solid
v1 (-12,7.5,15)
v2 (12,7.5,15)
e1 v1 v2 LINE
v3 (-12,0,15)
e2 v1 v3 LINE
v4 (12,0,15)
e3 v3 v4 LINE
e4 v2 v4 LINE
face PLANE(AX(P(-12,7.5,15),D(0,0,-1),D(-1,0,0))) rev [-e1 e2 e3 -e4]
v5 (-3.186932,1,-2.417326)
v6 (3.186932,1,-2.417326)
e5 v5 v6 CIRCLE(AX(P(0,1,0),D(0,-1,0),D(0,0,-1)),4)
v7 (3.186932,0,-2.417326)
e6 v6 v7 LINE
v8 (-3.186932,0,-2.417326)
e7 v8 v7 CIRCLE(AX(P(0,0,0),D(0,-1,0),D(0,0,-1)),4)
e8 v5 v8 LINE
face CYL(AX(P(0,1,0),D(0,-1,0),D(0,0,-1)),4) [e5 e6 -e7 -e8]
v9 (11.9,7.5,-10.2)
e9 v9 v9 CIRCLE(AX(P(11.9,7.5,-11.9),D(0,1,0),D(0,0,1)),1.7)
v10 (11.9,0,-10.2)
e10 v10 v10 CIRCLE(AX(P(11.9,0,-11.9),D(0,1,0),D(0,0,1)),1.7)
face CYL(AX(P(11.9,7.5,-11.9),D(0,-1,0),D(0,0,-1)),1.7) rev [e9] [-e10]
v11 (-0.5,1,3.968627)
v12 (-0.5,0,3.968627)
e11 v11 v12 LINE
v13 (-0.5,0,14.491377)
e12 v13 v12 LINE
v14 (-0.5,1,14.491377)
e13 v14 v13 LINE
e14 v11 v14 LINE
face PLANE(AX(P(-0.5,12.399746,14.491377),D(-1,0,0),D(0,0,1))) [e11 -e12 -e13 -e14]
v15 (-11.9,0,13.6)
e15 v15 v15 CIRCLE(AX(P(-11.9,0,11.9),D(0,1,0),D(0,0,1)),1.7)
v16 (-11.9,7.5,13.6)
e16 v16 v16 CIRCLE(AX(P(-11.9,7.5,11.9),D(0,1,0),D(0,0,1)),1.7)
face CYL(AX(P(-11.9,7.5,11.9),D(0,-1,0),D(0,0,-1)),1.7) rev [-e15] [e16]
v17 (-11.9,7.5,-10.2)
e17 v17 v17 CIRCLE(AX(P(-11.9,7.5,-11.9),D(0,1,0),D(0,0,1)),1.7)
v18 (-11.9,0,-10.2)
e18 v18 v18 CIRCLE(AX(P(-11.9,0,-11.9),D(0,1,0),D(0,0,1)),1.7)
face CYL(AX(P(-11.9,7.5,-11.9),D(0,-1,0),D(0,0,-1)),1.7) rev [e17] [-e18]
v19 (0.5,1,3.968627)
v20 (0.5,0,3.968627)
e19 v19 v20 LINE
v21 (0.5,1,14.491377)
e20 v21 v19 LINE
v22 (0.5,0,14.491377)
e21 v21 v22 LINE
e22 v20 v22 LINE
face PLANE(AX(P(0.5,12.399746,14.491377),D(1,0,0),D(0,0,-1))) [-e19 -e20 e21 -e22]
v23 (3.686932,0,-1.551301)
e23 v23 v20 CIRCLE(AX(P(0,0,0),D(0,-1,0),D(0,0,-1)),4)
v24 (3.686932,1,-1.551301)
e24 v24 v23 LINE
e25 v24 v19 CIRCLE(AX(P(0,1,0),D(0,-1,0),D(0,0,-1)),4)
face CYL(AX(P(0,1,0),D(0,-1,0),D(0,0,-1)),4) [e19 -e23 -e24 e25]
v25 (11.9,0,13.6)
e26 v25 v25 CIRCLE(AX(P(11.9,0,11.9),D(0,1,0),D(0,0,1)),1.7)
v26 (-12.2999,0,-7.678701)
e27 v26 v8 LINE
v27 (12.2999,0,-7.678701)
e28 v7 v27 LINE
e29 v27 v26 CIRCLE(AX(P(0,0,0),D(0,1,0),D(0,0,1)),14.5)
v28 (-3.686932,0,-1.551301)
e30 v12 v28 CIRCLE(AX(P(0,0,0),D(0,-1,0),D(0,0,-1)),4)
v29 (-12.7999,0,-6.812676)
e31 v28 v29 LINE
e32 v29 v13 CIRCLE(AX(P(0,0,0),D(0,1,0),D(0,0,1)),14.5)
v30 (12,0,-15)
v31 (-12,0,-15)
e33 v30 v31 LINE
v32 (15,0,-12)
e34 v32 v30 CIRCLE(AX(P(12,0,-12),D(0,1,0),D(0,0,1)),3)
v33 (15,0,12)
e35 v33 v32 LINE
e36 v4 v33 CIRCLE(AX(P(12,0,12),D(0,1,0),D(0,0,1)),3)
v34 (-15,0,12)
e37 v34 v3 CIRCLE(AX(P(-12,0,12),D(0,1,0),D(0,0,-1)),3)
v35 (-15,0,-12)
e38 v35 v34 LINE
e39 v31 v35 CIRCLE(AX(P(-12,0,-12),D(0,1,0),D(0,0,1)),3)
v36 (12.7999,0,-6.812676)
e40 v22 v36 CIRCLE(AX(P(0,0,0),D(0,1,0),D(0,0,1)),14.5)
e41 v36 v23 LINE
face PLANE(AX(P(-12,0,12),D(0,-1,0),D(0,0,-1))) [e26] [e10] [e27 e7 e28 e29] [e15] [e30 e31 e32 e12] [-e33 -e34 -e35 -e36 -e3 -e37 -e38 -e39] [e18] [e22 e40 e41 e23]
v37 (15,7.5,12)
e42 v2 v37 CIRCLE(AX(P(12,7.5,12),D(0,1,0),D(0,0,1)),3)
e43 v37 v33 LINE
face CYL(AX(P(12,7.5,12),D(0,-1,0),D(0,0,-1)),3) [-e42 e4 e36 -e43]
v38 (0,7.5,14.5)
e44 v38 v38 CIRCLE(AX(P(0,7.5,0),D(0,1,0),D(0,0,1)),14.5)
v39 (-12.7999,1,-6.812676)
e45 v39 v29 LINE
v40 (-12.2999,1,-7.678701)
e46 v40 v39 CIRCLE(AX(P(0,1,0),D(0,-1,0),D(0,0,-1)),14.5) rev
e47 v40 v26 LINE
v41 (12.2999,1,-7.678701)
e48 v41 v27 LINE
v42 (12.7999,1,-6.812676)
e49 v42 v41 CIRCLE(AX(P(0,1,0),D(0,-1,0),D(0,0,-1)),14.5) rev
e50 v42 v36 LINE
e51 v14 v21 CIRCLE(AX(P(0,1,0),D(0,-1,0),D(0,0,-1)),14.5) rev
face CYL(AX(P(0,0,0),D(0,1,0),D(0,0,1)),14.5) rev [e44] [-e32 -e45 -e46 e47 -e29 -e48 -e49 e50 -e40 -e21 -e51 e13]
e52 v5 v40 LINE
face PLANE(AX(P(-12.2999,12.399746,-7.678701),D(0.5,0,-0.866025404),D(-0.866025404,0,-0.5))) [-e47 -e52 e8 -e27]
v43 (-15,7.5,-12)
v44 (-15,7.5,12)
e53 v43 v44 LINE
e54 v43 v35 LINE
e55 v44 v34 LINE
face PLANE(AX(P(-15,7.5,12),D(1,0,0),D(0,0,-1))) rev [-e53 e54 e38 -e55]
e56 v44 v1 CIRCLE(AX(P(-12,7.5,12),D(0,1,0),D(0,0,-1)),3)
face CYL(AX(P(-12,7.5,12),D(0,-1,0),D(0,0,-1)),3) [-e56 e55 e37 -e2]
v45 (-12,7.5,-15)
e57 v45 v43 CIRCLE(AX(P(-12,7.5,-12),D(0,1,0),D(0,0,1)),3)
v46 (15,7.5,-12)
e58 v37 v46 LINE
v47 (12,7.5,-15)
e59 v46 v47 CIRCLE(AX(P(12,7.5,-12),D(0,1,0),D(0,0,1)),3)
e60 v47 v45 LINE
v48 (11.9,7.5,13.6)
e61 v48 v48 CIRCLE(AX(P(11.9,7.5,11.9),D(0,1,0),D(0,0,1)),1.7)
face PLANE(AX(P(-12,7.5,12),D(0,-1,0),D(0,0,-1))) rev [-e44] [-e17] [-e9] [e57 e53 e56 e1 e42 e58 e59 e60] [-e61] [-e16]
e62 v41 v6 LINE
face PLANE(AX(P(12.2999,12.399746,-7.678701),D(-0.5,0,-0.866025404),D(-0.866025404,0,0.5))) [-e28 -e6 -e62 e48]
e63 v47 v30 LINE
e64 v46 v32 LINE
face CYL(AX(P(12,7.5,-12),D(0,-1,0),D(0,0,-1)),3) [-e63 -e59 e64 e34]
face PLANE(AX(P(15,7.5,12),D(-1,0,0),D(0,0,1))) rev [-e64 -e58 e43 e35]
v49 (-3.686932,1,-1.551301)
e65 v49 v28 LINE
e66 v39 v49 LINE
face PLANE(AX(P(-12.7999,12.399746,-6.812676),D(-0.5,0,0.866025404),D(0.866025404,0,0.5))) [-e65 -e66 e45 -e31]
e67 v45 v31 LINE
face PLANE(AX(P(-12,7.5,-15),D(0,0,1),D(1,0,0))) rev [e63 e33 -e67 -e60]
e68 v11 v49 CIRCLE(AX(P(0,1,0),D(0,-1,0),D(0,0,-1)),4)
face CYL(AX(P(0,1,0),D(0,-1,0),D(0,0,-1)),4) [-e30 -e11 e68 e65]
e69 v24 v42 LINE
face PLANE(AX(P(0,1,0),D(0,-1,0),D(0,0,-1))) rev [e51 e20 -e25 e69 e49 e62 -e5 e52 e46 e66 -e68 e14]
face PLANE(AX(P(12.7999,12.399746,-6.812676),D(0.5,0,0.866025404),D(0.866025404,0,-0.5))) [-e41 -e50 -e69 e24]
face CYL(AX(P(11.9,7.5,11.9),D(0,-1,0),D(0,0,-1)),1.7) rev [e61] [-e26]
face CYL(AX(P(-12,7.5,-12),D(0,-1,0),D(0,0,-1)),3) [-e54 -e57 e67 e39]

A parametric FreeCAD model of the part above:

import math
import FreeCAD as App
import Part
import Sketcher
from FreeCAD import Vector
Q = App.Units.Quantity

doc = App.newDocument("Part")
body = doc.addObject("PartDesign::Body", "Body")

sketch1 = body.newObject("Sketcher::SketchObject", "Sketch")
sketch1.AttachmentSupport = (doc.getObject("XZ_Plane"), [""])
sketch1.MapMode = "FlatFace"
sketch1.addGeometry(Part.LineSegment(Vector(-12, 15, 0), Vector(12, 15, 0)), False)
sketch1.addGeometry(Part.ArcOfCircle(Part.Circle(Vector(12, 12, 0), Vector(0, 0, 1), 3), math.radians(0), math.radians(90)), False)
sketch1.addGeometry(Part.LineSegment(Vector(15, 12, 0), Vector(15, -12, 0)), False)
sketch1.addGeometry(Part.ArcOfCircle(Part.Circle(Vector(12, -12, 0), Vector(0, 0, 1), 3), math.radians(-90), math.radians(0)), False)
sketch1.addGeometry(Part.LineSegment(Vector(12, -15, 0), Vector(-12, -15, 0)), False)
sketch1.addGeometry(Part.ArcOfCircle(Part.Circle(Vector(-12, -12, 0), Vector(0, 0, 1), 3), math.radians(180), math.radians(270)), False)
sketch1.addGeometry(Part.LineSegment(Vector(-15, -12, 0), Vector(-15, 12, 0)), False)
sketch1.addGeometry(Part.ArcOfCircle(Part.Circle(Vector(-12, 12, 0), Vector(0, 0, 1), 3), math.radians(90), math.radians(180)), False)
sketch1.addGeometry(Part.Circle(Vector(-11.9, 11.9, 0), Vector(0, 0, 1), 1.7), False)
sketch1.addGeometry(Part.Circle(Vector(11.9, 11.9, 0), Vector(0, 0, 1), 1.7), False)
sketch1.addGeometry(Part.Circle(Vector(-11.9, -11.9, 0), Vector(0, 0, 1), 1.7), False)
sketch1.addGeometry(Part.Circle(Vector(11.9, -11.9, 0), Vector(0, 0, 1), 1.7), False)
sketch1.addConstraint(Sketcher.Constraint("Tangent", 0, 2, 1, 2))
sketch1.addConstraint(Sketcher.Constraint("Tangent", 1, 1, 2, 1))
sketch1.addConstraint(Sketcher.Constraint("Tangent", 2, 2, 3, 2))
sketch1.addConstraint(Sketcher.Constraint("Tangent", 3, 1, 4, 1))
sketch1.addConstraint(Sketcher.Constraint("Tangent", 4, 2, 5, 2))
sketch1.addConstraint(Sketcher.Constraint("Tangent", 5, 1, 6, 1))
sketch1.addConstraint(Sketcher.Constraint("Tangent", 6, 2, 7, 2))
sketch1.addConstraint(Sketcher.Constraint("Tangent", 7, 1, 0, 1))
sketch1.addConstraint(Sketcher.Constraint("Horizontal", 0))
sketch1.addConstraint(Sketcher.Constraint("Vertical", 2))
sketch1.addConstraint(Sketcher.Constraint("Horizontal", 4))
sketch1.addConstraint(Sketcher.Constraint("Vertical", 6))
sketch1.addConstraint(Sketcher.Constraint("Equal", 1, 3))
sketch1.addConstraint(Sketcher.Constraint("Equal", 3, 5))
sketch1.addConstraint(Sketcher.Constraint("Equal", 5, 7))
sketch1.addConstraint(Sketcher.Constraint("Equal", 8, 9))
sketch1.addConstraint(Sketcher.Constraint("Equal", 9, 10))
sketch1.addConstraint(Sketcher.Constraint("Equal", 10, 11))
sketch1.addConstraint(Sketcher.Constraint("Symmetric", 1, 3, 5, 3, -1, 1))
sketch1.addConstraint(Sketcher.Constraint("Symmetric", 9, 3, 10, 3, -1, 1))
sketch1.addConstraint(Sketcher.Constraint("Symmetric", 8, 3, 11, 3, -1, 1))
sketch1.addConstraint(Sketcher.Constraint("Symmetric", 8, 3, 9, 3, -2))
sketch1.addConstraint(Sketcher.Constraint("Equal", 4, 2))
sketch1.addConstraint(Sketcher.Constraint("Radius", 1, Q("3 mm")))
sketch1.addConstraint(Sketcher.Constraint("Diameter", 8, Q("3.4 mm")))
sketch1.addConstraint(Sketcher.Constraint("DistanceX", 0, 1, 0, 2, Q("24 mm")))
sketch1.addConstraint(Sketcher.Constraint("DistanceX", 8, 3, -1, 1, Q("11.9 mm")))
sketch1.addConstraint(Sketcher.Constraint("DistanceY", -1, 1, 8, 3, Q("11.9 mm")))
pad1 = body.newObject("PartDesign::Pad", "Pad")
pad1.Profile = sketch1
pad1.Length = 7.5
pad1.Reversed = True

sketch2 = body.newObject("Sketcher::SketchObject", "Sketch001")
sketch2.AttachmentSupport = (doc.getObject("XZ_Plane"), [""])
sketch2.MapMode = "FlatFace"
sketch2.AttachmentOffset = App.Placement(Vector(0, 0, -7.5), App.Rotation())
sketch2.addGeometry(Part.Circle(Vector(0, 0, 0), Vector(0, 0, 1), 14), False)
sketch2.addConstraint(Sketcher.Constraint("Coincident", 0, 3, -1, 1))
sketch2.addConstraint(Sketcher.Constraint("Diameter", 0, Q("29 mm")))
pocket1 = body.newObject("PartDesign::Pocket", "Pocket")
pocket1.Profile = sketch2
pocket1.Length = 7.5
pocket1.Reversed = True
body2 = doc.addObject("PartDesign::Body", "Body001")

sketch3 = body2.newObject("Sketcher::SketchObject", "Sketch002")
sketch3.AttachmentSupport = (doc.getObject("XZ_Plane001"), [""])
sketch3.MapMode = "FlatFace"
sketch3.addGeometry(Part.Circle(Vector(0, 0, 0), Vector(0, 0, 1), 4), False)
sketch3.addConstraint(Sketcher.Constraint("Coincident", 0, 3, -1, 1))
sketch3.addConstraint(Sketcher.Constraint("Diameter", 0, Q("8 mm")))
pad2 = body2.newObject("PartDesign::Pad", "Pad001")
pad2.Profile = sketch3
pad2.Length = 1
pad2.Reversed = True
body.AllowCompound = True
doc.recompute()

boolean = body.newObject("PartDesign::Boolean", "Boolean")
boolean.Type = "Fuse"
boolean.addObjects([body2])

sketch4 = body.newObject("Sketcher::SketchObject", "Sketch003")
sketch4.AttachmentSupport = (doc.getObject("XZ_Plane"), [""])
sketch4.MapMode = "FlatFace"
sketch4.addGeometry(Part.LineSegment(Vector(-0.5, 14.5, 0), Vector(-0.5, 4, 0)), False)
sketch4.addGeometry(Part.ArcOfCircle(Part.Circle(Vector(0, 0, 0), Vector(0, 0, 1), 4), math.radians(82.82), math.radians(97.18)), False)
sketch4.addGeometry(Part.LineSegment(Vector(0.5, 4, 0), Vector(0.5, 14.5, 0)), False)
sketch4.addGeometry(Part.ArcOfCircle(Part.Circle(Vector(0, 0, 0), Vector(0, 0, 1), 14.5), math.radians(88.02), math.radians(91.98)), False)
sketch4.addGeometry(Part.LineSegment(Vector(3.2, -2.4, 0), Vector(12.3, -7.7, 0)), False)
sketch4.addGeometry(Part.ArcOfCircle(Part.Circle(Vector(0, 0, 0), Vector(0, 0, 1), 14.5), math.radians(-31.98), math.radians(-28.02)), False)
sketch4.addGeometry(Part.LineSegment(Vector(12.8, -6.8, 0), Vector(3.7, -1.6, 0)), False)
sketch4.addGeometry(Part.ArcOfCircle(Part.Circle(Vector(0, 0, 0), Vector(0, 0, 1), 4), math.radians(-37.18), math.radians(-22.82)), False)
sketch4.addGeometry(Part.LineSegment(Vector(-3.7, -1.6, 0), Vector(-12.8, -6.8, 0)), False)
sketch4.addGeometry(Part.ArcOfCircle(Part.Circle(Vector(0, 0, 0), Vector(0, 0, 1), 14.5), math.radians(-151.98), math.radians(-148.02)), False)
sketch4.addGeometry(Part.LineSegment(Vector(-12.3, -7.7, 0), Vector(-3.2, -2.4, 0)), False)
sketch4.addGeometry(Part.ArcOfCircle(Part.Circle(Vector(0, 0, 0), Vector(0, 0, 1), 4), math.radians(-157.18), math.radians(-142.82)), False)
sketch4.addConstraint(Sketcher.Constraint("Coincident", 0, 2, 1, 2))
sketch4.addConstraint(Sketcher.Constraint("Coincident", 1, 1, 2, 1))
sketch4.addConstraint(Sketcher.Constraint("Coincident", 2, 2, 3, 1))
sketch4.addConstraint(Sketcher.Constraint("Coincident", 3, 2, 0, 1))
sketch4.addConstraint(Sketcher.Constraint("Coincident", 4, 2, 5, 1))
sketch4.addConstraint(Sketcher.Constraint("Coincident", 5, 2, 6, 1))
sketch4.addConstraint(Sketcher.Constraint("Coincident", 6, 2, 7, 2))
sketch4.addConstraint(Sketcher.Constraint("Coincident", 7, 1, 4, 1))
sketch4.addConstraint(Sketcher.Constraint("Coincident", 8, 2, 9, 1))
sketch4.addConstraint(Sketcher.Constraint("Coincident", 9, 2, 10, 1))
sketch4.addConstraint(Sketcher.Constraint("Coincident", 10, 2, 11, 2))
sketch4.addConstraint(Sketcher.Constraint("Coincident", 11, 1, 8, 1))
sketch4.addConstraint(Sketcher.Constraint("Vertical", 0))
sketch4.addConstraint(Sketcher.Constraint("Vertical", 2))
sketch4.addConstraint(Sketcher.Constraint("Coincident", 1, 3, -1, 1))
sketch4.addConstraint(Sketcher.Constraint("Coincident", 3, 3, -1, 1))
sketch4.addConstraint(Sketcher.Constraint("Coincident", 5, 3, -1, 1))
sketch4.addConstraint(Sketcher.Constraint("Coincident", 7, 3, -1, 1))
sketch4.addConstraint(Sketcher.Constraint("Coincident", 9, 3, -1, 1))
sketch4.addConstraint(Sketcher.Constraint("Coincident", 11, 3, -1, 1))
sketch4.addConstraint(Sketcher.Constraint("Equal", 3, 5))
sketch4.addConstraint(Sketcher.Constraint("Equal", 1, 7))
sketch4.addConstraint(Sketcher.Constraint("Equal", 5, 9))
sketch4.addConstraint(Sketcher.Constraint("Equal", 7, 11))
sketch4.addConstraint(Sketcher.Constraint("Parallel", 4, 6))
sketch4.addConstraint(Sketcher.Constraint("Parallel", 8, 10))
sketch4.addConstraint(Sketcher.Constraint("Horizontal", 0, 2, 1, 1))
sketch4.addConstraint(Sketcher.Constraint("Horizontal", 5, 2, 8, 2))
sketch4.addConstraint(Sketcher.Constraint("Horizontal", 4, 2, 9, 2))
sketch4.addConstraint(Sketcher.Constraint("Horizontal", 7, 1, 10, 2))
sketch4.addConstraint(Sketcher.Constraint("Equal", 4, 6))
sketch4.addConstraint(Sketcher.Constraint("Radius", 1, Q("4 mm")))
sketch4.addConstraint(Sketcher.Constraint("Radius", 3, Q("14.5 mm")))
sketch4.addConstraint(Sketcher.Constraint("Angle", 4, Q("-30 deg")))
sketch4.addConstraint(Sketcher.Constraint("DistanceX", 0, 2, 1, 1, Q("1 mm")))
sketch4.addConstraint(Sketcher.Constraint("DistanceX", 4, 2, 5, 2, Q("0.5 mm")))
pad3 = body.newObject("PartDesign::Pad", "Pad002")
pad3.Profile = sketch4
pad3.Length = 1
pad3.Reversed = True

doc.recompute()
